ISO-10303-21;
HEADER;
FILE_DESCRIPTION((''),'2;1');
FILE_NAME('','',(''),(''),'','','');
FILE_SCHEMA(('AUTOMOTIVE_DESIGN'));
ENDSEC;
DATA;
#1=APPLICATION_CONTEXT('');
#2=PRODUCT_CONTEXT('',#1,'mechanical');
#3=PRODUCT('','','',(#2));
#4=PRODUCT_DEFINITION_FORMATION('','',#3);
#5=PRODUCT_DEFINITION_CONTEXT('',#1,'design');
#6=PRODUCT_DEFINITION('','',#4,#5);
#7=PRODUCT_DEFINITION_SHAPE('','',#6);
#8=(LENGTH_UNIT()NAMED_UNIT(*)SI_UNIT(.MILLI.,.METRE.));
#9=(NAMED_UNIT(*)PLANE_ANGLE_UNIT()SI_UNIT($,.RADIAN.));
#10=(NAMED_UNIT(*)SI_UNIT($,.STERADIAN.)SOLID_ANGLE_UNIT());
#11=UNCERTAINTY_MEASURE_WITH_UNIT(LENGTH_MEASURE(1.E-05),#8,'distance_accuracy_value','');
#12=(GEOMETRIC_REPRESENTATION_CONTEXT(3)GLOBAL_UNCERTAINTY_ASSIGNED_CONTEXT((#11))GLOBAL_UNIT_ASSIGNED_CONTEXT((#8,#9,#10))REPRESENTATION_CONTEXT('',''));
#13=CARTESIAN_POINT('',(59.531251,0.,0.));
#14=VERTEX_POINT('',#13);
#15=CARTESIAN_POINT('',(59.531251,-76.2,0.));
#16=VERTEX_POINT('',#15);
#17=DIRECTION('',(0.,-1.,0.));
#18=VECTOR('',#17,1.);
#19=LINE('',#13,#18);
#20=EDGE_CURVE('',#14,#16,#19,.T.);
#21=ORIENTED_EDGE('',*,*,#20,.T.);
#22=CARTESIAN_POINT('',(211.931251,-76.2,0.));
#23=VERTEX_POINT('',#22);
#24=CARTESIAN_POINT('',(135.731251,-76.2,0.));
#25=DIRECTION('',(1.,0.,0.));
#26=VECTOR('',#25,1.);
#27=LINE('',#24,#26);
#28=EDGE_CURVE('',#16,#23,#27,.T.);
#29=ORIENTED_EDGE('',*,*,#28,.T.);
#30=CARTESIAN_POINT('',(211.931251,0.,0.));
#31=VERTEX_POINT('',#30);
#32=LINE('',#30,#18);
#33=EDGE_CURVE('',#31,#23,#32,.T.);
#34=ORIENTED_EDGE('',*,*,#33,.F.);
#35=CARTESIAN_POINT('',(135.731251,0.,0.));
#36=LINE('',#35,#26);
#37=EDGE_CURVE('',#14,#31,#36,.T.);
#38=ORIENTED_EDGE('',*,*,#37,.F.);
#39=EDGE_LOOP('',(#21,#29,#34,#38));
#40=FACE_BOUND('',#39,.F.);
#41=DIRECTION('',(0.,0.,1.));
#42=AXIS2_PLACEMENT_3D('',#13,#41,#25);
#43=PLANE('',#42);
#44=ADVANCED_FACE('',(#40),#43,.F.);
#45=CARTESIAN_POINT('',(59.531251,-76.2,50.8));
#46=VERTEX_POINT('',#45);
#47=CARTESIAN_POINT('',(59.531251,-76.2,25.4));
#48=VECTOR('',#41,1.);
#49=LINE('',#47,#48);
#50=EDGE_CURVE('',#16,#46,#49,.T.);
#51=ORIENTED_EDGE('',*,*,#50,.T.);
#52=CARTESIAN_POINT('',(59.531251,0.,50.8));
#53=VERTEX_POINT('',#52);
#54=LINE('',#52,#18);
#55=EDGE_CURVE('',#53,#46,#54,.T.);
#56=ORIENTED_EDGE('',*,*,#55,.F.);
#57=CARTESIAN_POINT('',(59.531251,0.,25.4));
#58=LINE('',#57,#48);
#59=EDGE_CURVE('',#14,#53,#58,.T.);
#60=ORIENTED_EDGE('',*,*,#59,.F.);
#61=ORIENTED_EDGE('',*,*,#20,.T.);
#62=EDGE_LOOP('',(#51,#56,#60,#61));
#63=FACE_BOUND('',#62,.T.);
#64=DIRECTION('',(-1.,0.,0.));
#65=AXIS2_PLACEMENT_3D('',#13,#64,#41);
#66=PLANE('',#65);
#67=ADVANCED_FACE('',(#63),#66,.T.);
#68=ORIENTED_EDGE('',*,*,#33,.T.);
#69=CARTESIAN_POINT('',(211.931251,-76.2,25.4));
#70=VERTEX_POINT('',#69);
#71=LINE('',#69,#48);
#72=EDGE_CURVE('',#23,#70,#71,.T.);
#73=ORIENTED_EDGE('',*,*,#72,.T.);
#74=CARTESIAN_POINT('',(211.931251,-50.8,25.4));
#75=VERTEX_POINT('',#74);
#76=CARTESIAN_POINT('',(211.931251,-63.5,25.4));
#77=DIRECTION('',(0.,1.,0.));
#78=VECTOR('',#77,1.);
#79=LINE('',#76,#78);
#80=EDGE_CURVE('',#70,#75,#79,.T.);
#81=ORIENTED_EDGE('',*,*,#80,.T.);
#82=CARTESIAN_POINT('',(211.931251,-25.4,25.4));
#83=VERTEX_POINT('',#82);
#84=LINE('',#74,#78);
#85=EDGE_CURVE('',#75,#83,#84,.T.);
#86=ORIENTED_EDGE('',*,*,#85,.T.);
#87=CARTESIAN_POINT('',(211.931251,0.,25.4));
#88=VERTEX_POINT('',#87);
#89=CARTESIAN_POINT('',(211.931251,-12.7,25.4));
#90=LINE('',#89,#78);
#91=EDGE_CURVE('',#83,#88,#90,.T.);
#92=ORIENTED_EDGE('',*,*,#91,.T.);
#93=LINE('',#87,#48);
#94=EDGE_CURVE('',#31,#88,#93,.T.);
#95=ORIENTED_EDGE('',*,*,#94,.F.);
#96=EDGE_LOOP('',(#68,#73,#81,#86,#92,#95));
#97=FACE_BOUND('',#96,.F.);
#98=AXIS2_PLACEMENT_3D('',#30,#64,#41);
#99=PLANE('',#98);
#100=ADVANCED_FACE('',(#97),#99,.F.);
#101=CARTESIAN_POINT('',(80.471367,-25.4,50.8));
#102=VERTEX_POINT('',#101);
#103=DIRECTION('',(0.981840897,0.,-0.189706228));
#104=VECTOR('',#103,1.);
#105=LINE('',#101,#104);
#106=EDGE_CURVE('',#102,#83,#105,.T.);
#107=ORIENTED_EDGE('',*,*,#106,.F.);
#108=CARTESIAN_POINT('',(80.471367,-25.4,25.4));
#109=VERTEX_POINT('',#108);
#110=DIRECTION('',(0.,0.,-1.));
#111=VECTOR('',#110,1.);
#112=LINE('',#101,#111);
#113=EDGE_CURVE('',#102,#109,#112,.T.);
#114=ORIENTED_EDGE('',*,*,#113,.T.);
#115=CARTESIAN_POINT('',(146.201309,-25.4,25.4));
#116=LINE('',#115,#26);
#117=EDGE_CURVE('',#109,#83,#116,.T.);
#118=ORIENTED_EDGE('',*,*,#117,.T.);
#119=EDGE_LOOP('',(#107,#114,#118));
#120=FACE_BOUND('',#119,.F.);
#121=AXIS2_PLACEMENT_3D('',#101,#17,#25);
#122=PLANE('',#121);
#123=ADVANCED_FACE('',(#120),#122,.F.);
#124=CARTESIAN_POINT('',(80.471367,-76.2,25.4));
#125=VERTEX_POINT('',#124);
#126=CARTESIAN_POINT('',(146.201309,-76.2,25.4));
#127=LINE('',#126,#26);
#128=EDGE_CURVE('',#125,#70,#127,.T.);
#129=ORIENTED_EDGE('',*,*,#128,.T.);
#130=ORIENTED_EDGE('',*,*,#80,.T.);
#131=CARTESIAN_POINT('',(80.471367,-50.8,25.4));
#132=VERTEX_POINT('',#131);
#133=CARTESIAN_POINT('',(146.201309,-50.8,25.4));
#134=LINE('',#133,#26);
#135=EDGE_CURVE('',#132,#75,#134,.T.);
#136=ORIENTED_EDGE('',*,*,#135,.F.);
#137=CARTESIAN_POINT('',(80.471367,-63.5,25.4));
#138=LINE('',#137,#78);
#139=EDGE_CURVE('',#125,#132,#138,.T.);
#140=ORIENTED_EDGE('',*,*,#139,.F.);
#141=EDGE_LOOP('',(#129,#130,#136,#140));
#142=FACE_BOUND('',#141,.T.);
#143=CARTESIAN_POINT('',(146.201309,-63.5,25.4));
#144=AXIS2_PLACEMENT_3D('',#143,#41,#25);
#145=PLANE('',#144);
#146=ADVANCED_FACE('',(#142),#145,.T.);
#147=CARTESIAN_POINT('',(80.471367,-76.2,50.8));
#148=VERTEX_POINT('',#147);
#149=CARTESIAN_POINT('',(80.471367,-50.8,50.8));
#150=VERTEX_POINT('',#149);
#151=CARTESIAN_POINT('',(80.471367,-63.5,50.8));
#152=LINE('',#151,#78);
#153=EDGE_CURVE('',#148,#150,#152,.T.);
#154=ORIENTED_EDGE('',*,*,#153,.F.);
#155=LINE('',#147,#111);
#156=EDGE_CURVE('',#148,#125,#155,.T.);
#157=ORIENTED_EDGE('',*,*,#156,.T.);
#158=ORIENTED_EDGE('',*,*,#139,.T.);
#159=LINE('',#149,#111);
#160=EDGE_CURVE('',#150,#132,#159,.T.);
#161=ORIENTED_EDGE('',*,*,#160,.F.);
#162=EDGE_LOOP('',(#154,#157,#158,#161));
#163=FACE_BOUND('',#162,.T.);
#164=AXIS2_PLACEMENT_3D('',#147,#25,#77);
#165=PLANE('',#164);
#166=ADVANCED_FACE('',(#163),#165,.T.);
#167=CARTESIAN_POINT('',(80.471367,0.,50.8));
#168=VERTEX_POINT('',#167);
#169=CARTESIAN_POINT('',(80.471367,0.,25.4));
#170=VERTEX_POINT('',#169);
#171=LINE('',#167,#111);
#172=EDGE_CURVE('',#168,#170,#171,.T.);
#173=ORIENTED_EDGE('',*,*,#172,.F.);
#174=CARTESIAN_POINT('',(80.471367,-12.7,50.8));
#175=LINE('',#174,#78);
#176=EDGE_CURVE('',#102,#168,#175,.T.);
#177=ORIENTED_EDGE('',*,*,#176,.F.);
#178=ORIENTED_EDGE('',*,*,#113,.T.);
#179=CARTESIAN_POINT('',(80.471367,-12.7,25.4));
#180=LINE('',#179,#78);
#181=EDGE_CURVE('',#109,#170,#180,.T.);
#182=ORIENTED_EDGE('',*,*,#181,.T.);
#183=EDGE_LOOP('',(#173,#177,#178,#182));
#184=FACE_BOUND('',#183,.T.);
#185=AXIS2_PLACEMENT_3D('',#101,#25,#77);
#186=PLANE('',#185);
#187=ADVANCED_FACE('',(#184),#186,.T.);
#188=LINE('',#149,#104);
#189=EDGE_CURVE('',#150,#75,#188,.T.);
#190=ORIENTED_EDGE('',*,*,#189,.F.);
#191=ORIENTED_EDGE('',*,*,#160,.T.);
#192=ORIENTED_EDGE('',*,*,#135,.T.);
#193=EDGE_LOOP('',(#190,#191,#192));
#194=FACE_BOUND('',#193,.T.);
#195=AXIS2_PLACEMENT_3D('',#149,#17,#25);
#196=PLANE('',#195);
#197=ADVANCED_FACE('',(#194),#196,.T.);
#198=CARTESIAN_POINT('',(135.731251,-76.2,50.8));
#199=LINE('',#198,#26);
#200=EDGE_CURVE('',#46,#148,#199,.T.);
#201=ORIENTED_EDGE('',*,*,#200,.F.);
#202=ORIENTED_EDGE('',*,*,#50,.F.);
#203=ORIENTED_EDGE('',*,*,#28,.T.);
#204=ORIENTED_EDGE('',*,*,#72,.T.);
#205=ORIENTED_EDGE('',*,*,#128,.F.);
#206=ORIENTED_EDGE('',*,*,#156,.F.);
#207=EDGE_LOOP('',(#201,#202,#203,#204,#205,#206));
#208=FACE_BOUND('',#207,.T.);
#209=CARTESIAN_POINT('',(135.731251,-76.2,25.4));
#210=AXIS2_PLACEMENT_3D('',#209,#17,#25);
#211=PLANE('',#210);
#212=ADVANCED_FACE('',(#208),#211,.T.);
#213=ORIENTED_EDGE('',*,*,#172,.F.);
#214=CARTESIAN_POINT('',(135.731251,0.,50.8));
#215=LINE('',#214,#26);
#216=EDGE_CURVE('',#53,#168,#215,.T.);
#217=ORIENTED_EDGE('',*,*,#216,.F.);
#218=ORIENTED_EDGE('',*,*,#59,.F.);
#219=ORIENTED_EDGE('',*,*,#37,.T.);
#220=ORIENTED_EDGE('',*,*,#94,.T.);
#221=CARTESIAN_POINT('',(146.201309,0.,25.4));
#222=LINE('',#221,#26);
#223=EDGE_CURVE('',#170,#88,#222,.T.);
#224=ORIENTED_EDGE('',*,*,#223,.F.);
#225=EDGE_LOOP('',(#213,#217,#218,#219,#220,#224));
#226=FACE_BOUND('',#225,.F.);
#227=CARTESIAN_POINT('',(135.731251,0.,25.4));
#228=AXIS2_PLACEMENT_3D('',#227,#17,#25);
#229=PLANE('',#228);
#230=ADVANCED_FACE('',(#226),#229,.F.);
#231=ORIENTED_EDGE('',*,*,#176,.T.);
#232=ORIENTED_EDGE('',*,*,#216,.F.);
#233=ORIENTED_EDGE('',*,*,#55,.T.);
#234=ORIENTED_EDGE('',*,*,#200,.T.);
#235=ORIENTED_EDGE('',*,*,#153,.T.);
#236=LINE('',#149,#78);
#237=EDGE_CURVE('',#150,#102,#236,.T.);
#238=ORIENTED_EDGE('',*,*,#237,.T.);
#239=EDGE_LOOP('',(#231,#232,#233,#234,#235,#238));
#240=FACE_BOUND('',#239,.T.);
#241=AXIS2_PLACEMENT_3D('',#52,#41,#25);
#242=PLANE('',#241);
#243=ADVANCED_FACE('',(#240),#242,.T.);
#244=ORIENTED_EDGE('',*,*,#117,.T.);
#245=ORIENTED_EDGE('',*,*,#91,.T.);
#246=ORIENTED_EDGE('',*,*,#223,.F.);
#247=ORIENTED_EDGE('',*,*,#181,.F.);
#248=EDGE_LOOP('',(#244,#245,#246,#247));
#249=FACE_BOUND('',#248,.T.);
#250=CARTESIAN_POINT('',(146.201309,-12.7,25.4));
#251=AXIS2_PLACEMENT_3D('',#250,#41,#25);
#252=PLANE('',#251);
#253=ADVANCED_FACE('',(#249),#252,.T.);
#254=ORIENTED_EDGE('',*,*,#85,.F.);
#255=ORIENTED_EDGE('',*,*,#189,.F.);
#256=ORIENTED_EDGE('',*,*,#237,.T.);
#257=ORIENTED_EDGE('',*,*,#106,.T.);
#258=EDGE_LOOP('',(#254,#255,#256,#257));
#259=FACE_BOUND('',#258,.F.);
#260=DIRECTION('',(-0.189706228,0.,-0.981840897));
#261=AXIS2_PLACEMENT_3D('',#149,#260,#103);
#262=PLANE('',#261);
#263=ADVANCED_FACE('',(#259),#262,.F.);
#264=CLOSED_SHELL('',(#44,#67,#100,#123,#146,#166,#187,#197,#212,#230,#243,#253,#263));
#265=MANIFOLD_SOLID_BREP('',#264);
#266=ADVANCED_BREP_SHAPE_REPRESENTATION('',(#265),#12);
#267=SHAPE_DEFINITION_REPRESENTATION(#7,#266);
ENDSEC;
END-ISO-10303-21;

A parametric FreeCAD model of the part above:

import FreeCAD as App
import Part
import Sketcher
Q = App.Units.Quantity

doc = App.newDocument("Part")
body = doc.addObject("PartDesign::Body", "Body")

# Sketch on XZ plane
sketch1 = doc.addObject("Sketcher::SketchObject", "Sketch")
body.addObject(sketch1)
sketch1.AttachmentSupport = (doc.XZ_Plane, [""])
sketch1.MapMode = "FlatFace"
sketch1.addGeometry(Part.LineSegment(App.Vector(60, 51, 0), App.Vector(60, 0, 0)), False)
sketch1.addGeometry(Part.LineSegment(App.Vector(60, 0, 0), App.Vector(212, 0, 0)), False)
sketch1.addGeometry(Part.LineSegment(App.Vector(212, 0, 0), App.Vector(212, 51, 0)), False)
sketch1.addGeometry(Part.LineSegment(App.Vector(212, 51, 0), App.Vector(60, 51, 0)), False)
sketch1.addConstraint(Sketcher.Constraint("Coincident", 0, 2, 1, 1))
sketch1.addConstraint(Sketcher.Constraint("Coincident", 1, 2, 2, 1))
sketch1.addConstraint(Sketcher.Constraint("Coincident", 2, 2, 3, 1))
sketch1.addConstraint(Sketcher.Constraint("Coincident", 3, 2, 0, 1))
sketch1.addConstraint(Sketcher.Constraint("Vertical", 0))
sketch1.addConstraint(Sketcher.Constraint("Horizontal", 1))
sketch1.addConstraint(Sketcher.Constraint("Vertical", 2))
sketch1.addConstraint(Sketcher.Constraint("Horizontal", 3))
sketch1.addConstraint(Sketcher.Constraint("PointOnObject", 0, 2, -1))
sketch1.addConstraint(Sketcher.Constraint("DistanceX", 1, 1, 1, 2, Q("6 in")))
sketch1.addConstraint(Sketcher.Constraint("DistanceY", 0, 2, 0, 1, Q("2 in")))
sketch1.addConstraint(Sketcher.Constraint("DistanceX", -1, 1, 0, 2, Q("2.34375 in")))
pad1 = doc.addObject("PartDesign::Pad", "Pad")
body.addObject(pad1)
pad1.Profile = sketch1
pad1.Length = Q("3 in")

# Sketch on XY plane
sketch2 = doc.addObject("Sketcher::SketchObject", "Sketch001")
body.addObject(sketch2)
sketch2.AttachmentSupport = (doc.XY_Plane, [""])
sketch2.MapMode = "FlatFace"
sketch2.AttachmentOffset = App.Placement(App.Vector(0, 0, 2 * 25.4), App.Rotation())
sketch2.addGeometry(Part.LineSegment(App.Vector(80, -51, 0), App.Vector(80, -76, 0)), False)
sketch2.addGeometry(Part.LineSegment(App.Vector(80, -76, 0), App.Vector(212, -76, 0)), False)
sketch2.addGeometry(Part.LineSegment(App.Vector(212, -76, 0), App.Vector(212, -51, 0)), False)
sketch2.addGeometry(Part.LineSegment(App.Vector(212, -51, 0), App.Vector(80, -51, 0)), False)
sketch2.addConstraint(Sketcher.Constraint("Coincident", 0, 2, 1, 1))
sketch2.addConstraint(Sketcher.Constraint("Coincident", 1, 2, 2, 1))
sketch2.addConstraint(Sketcher.Constraint("Coincident", 2, 2, 3, 1))
sketch2.addConstraint(Sketcher.Constraint("Coincident", 3, 2, 0, 1))
sketch2.addConstraint(Sketcher.Constraint("Vertical", 0))
sketch2.addConstraint(Sketcher.Constraint("Horizontal", 1))
sketch2.addConstraint(Sketcher.Constraint("Vertical", 2))
sketch2.addConstraint(Sketcher.Constraint("Horizontal", 3))
sketch2.addConstraint(Sketcher.Constraint("DistanceY", 0, 2, 0, 1, Q("1 in")))
sketch2.addConstraint(Sketcher.Constraint("DistanceY", 0, 2, -1, 1, Q("3 in")))
sketch2.addConstraint(Sketcher.Constraint("DistanceX", -1, 1, 1, 2, Q("8.34375 in")))
sketch2.addConstraint(Sketcher.Constraint("DistanceX", 1, 1, 1, 2, 131.459884))
pocket1 = doc.addObject("PartDesign::Pocket", "Pocket")
body.addObject(pocket1)
pocket1.Profile = sketch2
pocket1.Length = Q("1 in")

# Sketch on XY plane
sketch3 = doc.addObject("Sketcher::SketchObject", "Sketch002")
body.addObject(sketch3)
sketch3.AttachmentSupport = (doc.XY_Plane, [""])
sketch3.MapMode = "FlatFace"
sketch3.AttachmentOffset = App.Placement(App.Vector(0, 0, 2 * 25.4), App.Rotation())
sketch3.addGeometry(Part.LineSegment(App.Vector(80, 0, 0), App.Vector(80, -25, 0)), False)
sketch3.addGeometry(Part.LineSegment(App.Vector(80, -25, 0), App.Vector(212, -25, 0)), False)
sketch3.addGeometry(Part.LineSegment(App.Vector(212, -25, 0), App.Vector(212, 0, 0)), False)
sketch3.addGeometry(Part.LineSegment(App.Vector(212, 0, 0), App.Vector(80, 0, 0)), False)
sketch3.addConstraint(Sketcher.Constraint("Coincident", 0, 2, 1, 1))
sketch3.addConstraint(Sketcher.Constraint("Coincident", 1, 2, 2, 1))
sketch3.addConstraint(Sketcher.Constraint("Coincident", 2, 2, 3, 1))
sketch3.addConstraint(Sketcher.Constraint("Coincident", 3, 2, 0, 1))
sketch3.addConstraint(Sketcher.Constraint("Vertical", 0))
sketch3.addConstraint(Sketcher.Constraint("Horizontal", 1))
sketch3.addConstraint(Sketcher.Constraint("Vertical", 2))
sketch3.addConstraint(Sketcher.Constraint("Horizontal", 3))
sketch3.addConstraint(Sketcher.Constraint("PointOnObject", 2, 2, -1))
sketch3.addConstraint(Sketcher.Constraint("DistanceY", 0, 2, 0, 1, Q("1 in")))
sketch3.addConstraint(Sketcher.Constraint("DistanceX", -1, 1, 1, 2, Q("8.34375 in")))
sketch3.addConstraint(Sketcher.Constraint("DistanceX", 1, 1, 1, 2, 131.459884))
pocket2 = doc.addObject("PartDesign::Pocket", "Pocket001")
body.addObject(pocket2)
pocket2.Profile = sketch3
pocket2.Length = Q("1 in")

# Sketch on XZ plane
sketch4 = doc.addObject("Sketcher::SketchObject", "Sketch003")
body.addObject(sketch4)
sketch4.AttachmentSupport = (doc.XZ_Plane, [""])
sketch4.MapMode = "FlatFace"
sketch4.AttachmentOffset = App.Placement(App.Vector(0, 0, 2 * 25.4), App.Rotation())
sketch4.addGeometry(Part.LineSegment(App.Vector(212, 51, 0), App.Vector(80, 51, 0)), False)
sketch4.addGeometry(Part.LineSegment(App.Vector(80, 51, 0), App.Vector(212, 25, 0)), False)
sketch4.addGeometry(Part.LineSegment(App.Vector(212, 25, 0), App.Vector(212, 51, 0)), False)
sketch4.addConstraint(Sketcher.Constraint("Coincident", 0, 2, 1, 1))
sketch4.addConstraint(Sketcher.Constraint("Coincident", 1, 2, 2, 1))
sketch4.addConstraint(Sketcher.Constraint("Coincident", 2, 2, 0, 1))
sketch4.addConstraint(Sketcher.Constraint("Horizontal", 0))
sketch4.addConstraint(Sketcher.Constraint("Vertical", 2))
sketch4.addConstraint(Sketcher.Constraint("DistanceY", 2, 1, 2, 2, Q("1 in")))
sketch4.addConstraint(Sketcher.Constraint("DistanceY", -1, 1, 0, 2, Q("2 in")))
sketch4.addConstraint(Sketcher.Constraint("DistanceX", -1, 1, 1, 2, Q("8.34375 in")))
sketch4.addConstraint(Sketcher.Constraint("Distance", 1, 133.891229))
pocket3 = doc.addObject("PartDesign::Pocket", "Pocket002")
body.addObject(pocket3)
pocket3.Profile = sketch4
pocket3.Length = Q("1 in")

doc.recompute()
